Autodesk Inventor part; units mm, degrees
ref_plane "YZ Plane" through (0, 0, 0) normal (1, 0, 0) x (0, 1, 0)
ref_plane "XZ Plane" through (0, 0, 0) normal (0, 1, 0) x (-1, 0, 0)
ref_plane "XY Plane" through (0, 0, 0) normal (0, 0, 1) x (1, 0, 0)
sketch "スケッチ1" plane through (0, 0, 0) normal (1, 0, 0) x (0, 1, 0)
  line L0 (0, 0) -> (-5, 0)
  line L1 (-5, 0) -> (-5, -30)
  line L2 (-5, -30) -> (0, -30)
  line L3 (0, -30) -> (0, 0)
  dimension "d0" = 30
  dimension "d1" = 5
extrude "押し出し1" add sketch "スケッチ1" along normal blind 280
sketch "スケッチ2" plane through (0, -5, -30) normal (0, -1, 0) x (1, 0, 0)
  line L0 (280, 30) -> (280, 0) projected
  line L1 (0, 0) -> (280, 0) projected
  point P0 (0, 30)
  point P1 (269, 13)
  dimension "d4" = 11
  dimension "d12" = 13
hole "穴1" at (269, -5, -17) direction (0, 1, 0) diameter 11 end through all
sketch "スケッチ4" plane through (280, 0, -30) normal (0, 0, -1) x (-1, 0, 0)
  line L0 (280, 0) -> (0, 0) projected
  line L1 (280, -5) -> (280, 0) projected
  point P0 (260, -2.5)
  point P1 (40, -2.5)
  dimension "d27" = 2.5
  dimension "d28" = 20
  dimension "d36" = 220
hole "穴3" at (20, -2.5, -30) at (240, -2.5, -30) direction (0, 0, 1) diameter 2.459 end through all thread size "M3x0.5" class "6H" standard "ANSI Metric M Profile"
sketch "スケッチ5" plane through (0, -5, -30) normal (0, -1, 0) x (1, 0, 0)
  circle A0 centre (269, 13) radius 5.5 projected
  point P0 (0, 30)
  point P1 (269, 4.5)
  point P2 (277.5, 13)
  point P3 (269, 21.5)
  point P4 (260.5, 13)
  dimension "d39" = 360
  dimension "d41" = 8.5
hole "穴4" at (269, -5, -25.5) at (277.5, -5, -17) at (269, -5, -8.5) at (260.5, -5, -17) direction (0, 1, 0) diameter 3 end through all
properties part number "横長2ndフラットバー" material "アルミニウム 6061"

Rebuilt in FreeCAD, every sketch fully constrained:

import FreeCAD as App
import Part
import Sketcher
from FreeCAD import Vector
Q = App.Units.Quantity


def add_polygon(sketch, points):
    """Adds a closed chain of lines whose ends are joined by coincident constraints."""
    first, n = sketch.GeometryCount, len(points)
    for a, b in zip(points, points[1:] + points[:1]):
        sketch.addGeometry(Part.LineSegment(App.Vector(*a, 0), App.Vector(*b, 0)), False)
    for i in range(n):
        sketch.addConstraint(Sketcher.Constraint("Coincident", first + i, 2, first + (i + 1) % n, 1))

doc = App.newDocument("Part")
params = doc.addObject("Spreadsheet::Sheet", "Params")
for row, (alias, value) in enumerate([
    ("sketch1_width", "5 mm"),
    ("sketch1_height", "30 mm"),
    ("pad1_length", "280 mm"),
    ("sketch2_diameter", "11 mm"),
    ("hole_diameter", "11 mm"),
    ("hole2_diameter", "2.459 mm"),
    ("sketch4_diameter", "3 mm"),
    ("hole3_diameter", "3 mm"),
], start=1):
    params.set(f"A{row}", alias)
    params.set(f"B{row}", "=" + value)
    params.setAlias(f"B{row}", alias)

body = doc.addObject("PartDesign::Body", "Body")

sketch1 = doc.addObject("Sketcher::SketchObject", "Sketch")
body.addObject(sketch1)
sketch1.AttachmentSupport = (doc.YZ_Plane, [""])
sketch1.MapMode = "FlatFace"
add_polygon(sketch1, [(0, -30), (0, 0), (-5, 0), (-5, -30)])
sketch1.addConstraint([
    Sketcher.Constraint("Vertical", 0),
    Sketcher.Constraint("Horizontal", 1),
    Sketcher.Constraint("Vertical", 2),
    Sketcher.Constraint("Horizontal", 3),
    Sketcher.Constraint("Coincident", 0, 2, -1, 1),
    Sketcher.Constraint("DistanceX", 1, 2, 1, 1, Q("5 mm")),
    Sketcher.Constraint("DistanceY", 0, 1, 0, 2, Q("30 mm")),
])
sketch1.setExpression("Constraints[9]", "Params.sketch1_width")
sketch1.setExpression("Constraints[10]", "Params.sketch1_height")
pad1 = doc.addObject("PartDesign::Pad", "Pad")
body.addObject(pad1)
pad1.Profile = sketch1
pad1.setExpression("Length", "Params.pad1_length")

sketch2 = doc.addObject("Sketcher::SketchObject", "Sketch001")
body.addObject(sketch2)
sketch2.AttachmentSupport = (doc.XZ_Plane, [""])
sketch2.MapMode = "FlatFace"
sketch2.AttachmentOffset = App.Placement(Vector(0, 0, 5), App.Rotation())
sketch2.addGeometry(Part.Circle(Vector(269, -17, 0), Vector(0, 0, 1), 6), False)
sketch2.addConstraint([
    Sketcher.Constraint("Diameter", 0, Q("11 mm")),
    Sketcher.Constraint("DistanceX", -1, 1, 0, 3, Q("269 mm")),
    Sketcher.Constraint("DistanceY", 0, 3, -1, 1, Q("17 mm")),
])
sketch2.setExpression("Constraints[0]", "Params.sketch2_diameter")
doc.recompute()
hole = doc.addObject("PartDesign::Hole", "Hole")
body.addObject(hole)
hole.Profile = sketch2
hole.ThreadType = "None"
hole.setExpression("Diameter", "Params.hole_diameter")
hole.DepthType = "ThroughAll"

sketch3 = doc.addObject("Sketcher::SketchObject", "Sketch002")
body.addObject(sketch3)
sketch3.AttachmentSupport = (doc.XY_Plane, [""])
sketch3.MapMode = "FlatFace"
sketch3.AttachmentOffset = App.Placement(Vector(0, 0, -30), App.Rotation())
sketch3.addGeometry([
    Part.Circle(Vector(20, -2.5, 0), Vector(0, 0, 1), 1.2),
    Part.Circle(Vector(240, -2.5, 0), Vector(0, 0, 1), 1.2),
], False)
sketch3.addConstraint([
    Sketcher.Constraint("Equal", 0, 1),
    Sketcher.Constraint("Horizontal", 0, 3, 1, 3),
    Sketcher.Constraint("Diameter", 0, Q("2.459 mm")),
    Sketcher.Constraint("DistanceX", -1, 1, 0, 3, Q("20 mm")),
    Sketcher.Constraint("DistanceX", -1, 1, 1, 3, Q("240 mm")),
    Sketcher.Constraint("DistanceY", 0, 3, -1, 1, Q("2.5 mm")),
])
doc.recompute()
hole2 = doc.addObject("PartDesign::Hole", "Hole001")
body.addObject(hole2)
hole2.Profile = sketch3
hole2.ThreadType = "None"
hole2.setExpression("Diameter", "Params.hole2_diameter")
hole2.DepthType = "ThroughAll"
hole2.Reversed = True

sketch4 = doc.addObject("Sketcher::SketchObject", "Sketch003")
body.addObject(sketch4)
sketch4.AttachmentSupport = (doc.XZ_Plane, [""])
sketch4.MapMode = "FlatFace"
sketch4.AttachmentOffset = App.Placement(Vector(0, 0, 5), App.Rotation())
sketch4.addGeometry([
    Part.Circle(Vector(269, -25.5, 0), Vector(0, 0, 1), 1.5),
    Part.Circle(Vector(277.5, -17, 0), Vector(0, 0, 1), 1.5),
    Part.Circle(Vector(269, -8.5, 0), Vector(0, 0, 1), 1.5),
    Part.Circle(Vector(260.5, -17, 0), Vector(0, 0, 1), 1.5),
], False)
sketch4.addConstraint([
    Sketcher.Constraint("Equal", 0, 1),
    Sketcher.Constraint("Equal", 1, 2),
    Sketcher.Constraint("Equal", 2, 3),
    Sketcher.Constraint("Horizontal", 1, 3, 3, 3),
    Sketcher.Constraint("Vertical", 0, 3, 2, 3),
    Sketcher.Constraint("Diameter", 0, Q("3 mm")),
    Sketcher.Constraint("DistanceX", -1, 1, 0, 3, Q("269 mm")),
    Sketcher.Constraint("DistanceY", 1, 3, -1, 1, Q("17 mm")),
    Sketcher.Constraint("DistanceY", 0, 3, 2, 3, Q("17 mm")),
    Sketcher.Constraint("DistanceX", 3, 3, 1, 3, Q("17 mm")),
    Sketcher.Constraint("DistanceY", 0, 3, -1, 1, Q("25.5 mm")),
    Sketcher.Constraint("DistanceX", -1, 1, 1, 3, Q("277.5 mm")),
])
sketch4.setExpression("Constraints[5]", "Params.sketch4_diameter")
doc.recompute()
hole3 = doc.addObject("PartDesign::Hole", "Hole002")
body.addObject(hole3)
hole3.Profile = sketch4
hole3.ThreadType = "None"
hole3.setExpression("Diameter", "Params.hole3_diameter")
hole3.DepthType = "ThroughAll"

doc.recompute()
